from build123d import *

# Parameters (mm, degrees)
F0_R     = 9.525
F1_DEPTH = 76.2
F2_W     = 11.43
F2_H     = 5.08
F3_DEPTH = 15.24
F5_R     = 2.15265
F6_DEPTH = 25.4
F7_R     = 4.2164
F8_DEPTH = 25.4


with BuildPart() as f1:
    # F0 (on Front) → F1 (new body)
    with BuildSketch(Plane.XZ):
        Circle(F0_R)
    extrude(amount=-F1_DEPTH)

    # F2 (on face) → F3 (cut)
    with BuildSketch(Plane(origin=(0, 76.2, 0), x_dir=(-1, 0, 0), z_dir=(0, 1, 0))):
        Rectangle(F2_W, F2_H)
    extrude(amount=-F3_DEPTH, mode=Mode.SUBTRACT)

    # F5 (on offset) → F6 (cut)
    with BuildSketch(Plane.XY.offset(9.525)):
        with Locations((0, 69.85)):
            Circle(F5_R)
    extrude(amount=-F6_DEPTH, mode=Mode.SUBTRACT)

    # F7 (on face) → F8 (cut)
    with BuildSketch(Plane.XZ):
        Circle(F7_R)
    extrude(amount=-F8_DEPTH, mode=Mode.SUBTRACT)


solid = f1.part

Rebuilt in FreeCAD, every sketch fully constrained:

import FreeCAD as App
import Part
import Sketcher
Q = App.Units.Quantity


def add_polygon(sketch, points):
    """Adds a closed chain of lines whose ends are joined by coincident constraints."""
    first, n = sketch.GeometryCount, len(points)
    for a, b in zip(points, points[1:] + points[:1]):
        sketch.addGeometry(Part.LineSegment(App.Vector(*a, 0), App.Vector(*b, 0)), False)
    for i in range(n):
        sketch.addConstraint(Sketcher.Constraint("Coincident", first + i, 2, first + (i + 1) % n, 1))

doc = App.newDocument("Part")
params = doc.addObject("Spreadsheet::Sheet", "Params")
for row, (alias, value) in enumerate([
    ("sketch1_diameter", "0.75 in"),
    ("pad1_length", "3 in"),
    ("sketch2_height", "0.2 in"),
    ("sketch2_width", "0.45 in"),
    ("pocket1_length", "0.6 in"),
    ("pocket2_length", "1 in"),
    ("sketch4_diameter", "0.332 in"),
    ("pocket3_length", "1 in"),
], start=1):
    params.set(f"A{row}", alias)
    params.set(f"B{row}", "=" + value)
    params.setAlias(f"B{row}", alias)

body = doc.addObject("PartDesign::Body", "Body")

sketch1 = body.newObject("Sketcher::SketchObject", "Sketch")
sketch1.AttachmentSupport = (doc.getObject("XZ_Plane"), [""])
sketch1.MapMode = "FlatFace"
sketch1.addGeometry(Part.Circle(App.Vector(0, 0, 0), App.Vector(0, 0, 1), 10), False)
sketch1.addConstraint(Sketcher.Constraint("Coincident", 0, 3, -1, 1))
sketch1.addConstraint(Sketcher.Constraint("Diameter", 0, Q("0.75 in")))
sketch1.setExpression("Constraints[1]", "Params.sketch1_diameter")
pad1 = body.newObject("PartDesign::Pad", "Pad")
pad1.Profile = sketch1
pad1.setExpression("Length", "Params.pad1_length")
pad1.Reversed = True

sketch2 = body.newObject("Sketcher::SketchObject", "Sketch001")
sketch2.AttachmentSupport = (doc.getObject("XZ_Plane"), [""])
sketch2.MapMode = "FlatFace"
sketch2.AttachmentOffset = App.Placement(App.Vector(0, 0, -3 * 25.4), App.Rotation())
add_polygon(sketch2, [(6, 3), (6, -3), (-6, -3), (-6, 3)])
sketch2.addConstraint(Sketcher.Constraint("Vertical", 0))
sketch2.addConstraint(Sketcher.Constraint("Horizontal", 1))
sketch2.addConstraint(Sketcher.Constraint("Vertical", 2))
sketch2.addConstraint(Sketcher.Constraint("Horizontal", 3))
sketch2.addConstraint(Sketcher.Constraint("Symmetric", 0, 2, 2, 2, -1, 1))
sketch2.addConstraint(Sketcher.Constraint("DistanceY", 0, 2, 0, 1, Q("0.2 in")))
sketch2.addConstraint(Sketcher.Constraint("DistanceX", 1, 2, 1, 1, Q("0.45 in")))
sketch2.setExpression("Constraints[9]", "Params.sketch2_height")
sketch2.setExpression("Constraints[10]", "Params.sketch2_width")
pocket1 = body.newObject("PartDesign::Pocket", "Pocket")
pocket1.Profile = sketch2
pocket1.setExpression("Length", "Params.pocket1_length")
pocket1.Reversed = True

sketch3 = body.newObject("Sketcher::SketchObject", "Sketch002")
sketch3.AttachmentSupport = (doc.getObject("XY_Plane"), [""])
sketch3.MapMode = "FlatFace"
sketch3.AttachmentOffset = App.Placement(App.Vector(0, 0, 0.375 * 25.4), App.Rotation())
sketch3.addGeometry(Part.Circle(App.Vector(0, 69.8, 0), App.Vector(0, 0, 1), 2.2), False)
sketch3.addConstraint(Sketcher.Constraint("PointOnObject", 0, 3, -2))
sketch3.addConstraint(Sketcher.Constraint("Diameter", 0, Q("0.1695 in")))
sketch3.addConstraint(Sketcher.Constraint("DistanceY", -1, 1, 0, 3, Q("2.75 in")))
pocket2 = body.newObject("PartDesign::Pocket", "Pocket001")
pocket2.Profile = sketch3
pocket2.setExpression("Length", "Params.pocket2_length")

sketch4 = body.newObject("Sketcher::SketchObject", "Sketch003")
sketch4.AttachmentSupport = (doc.getObject("XZ_Plane"), [""])
sketch4.MapMode = "FlatFace"
sketch4.addGeometry(Part.Circle(App.Vector(0, 0, 0), App.Vector(0, 0, 1), 4.2), False)
sketch4.addConstraint(Sketcher.Constraint("Coincident", 0, 3, -1, 1))
sketch4.addConstraint(Sketcher.Constraint("Diameter", 0, Q("0.332 in")))
sketch4.setExpression("Constraints[1]", "Params.sketch4_diameter")
pocket3 = body.newObject("PartDesign::Pocket", "Pocket002")
pocket3.Profile = sketch4
pocket3.setExpression("Length", "Params.pocket3_length")

doc.recompute()
